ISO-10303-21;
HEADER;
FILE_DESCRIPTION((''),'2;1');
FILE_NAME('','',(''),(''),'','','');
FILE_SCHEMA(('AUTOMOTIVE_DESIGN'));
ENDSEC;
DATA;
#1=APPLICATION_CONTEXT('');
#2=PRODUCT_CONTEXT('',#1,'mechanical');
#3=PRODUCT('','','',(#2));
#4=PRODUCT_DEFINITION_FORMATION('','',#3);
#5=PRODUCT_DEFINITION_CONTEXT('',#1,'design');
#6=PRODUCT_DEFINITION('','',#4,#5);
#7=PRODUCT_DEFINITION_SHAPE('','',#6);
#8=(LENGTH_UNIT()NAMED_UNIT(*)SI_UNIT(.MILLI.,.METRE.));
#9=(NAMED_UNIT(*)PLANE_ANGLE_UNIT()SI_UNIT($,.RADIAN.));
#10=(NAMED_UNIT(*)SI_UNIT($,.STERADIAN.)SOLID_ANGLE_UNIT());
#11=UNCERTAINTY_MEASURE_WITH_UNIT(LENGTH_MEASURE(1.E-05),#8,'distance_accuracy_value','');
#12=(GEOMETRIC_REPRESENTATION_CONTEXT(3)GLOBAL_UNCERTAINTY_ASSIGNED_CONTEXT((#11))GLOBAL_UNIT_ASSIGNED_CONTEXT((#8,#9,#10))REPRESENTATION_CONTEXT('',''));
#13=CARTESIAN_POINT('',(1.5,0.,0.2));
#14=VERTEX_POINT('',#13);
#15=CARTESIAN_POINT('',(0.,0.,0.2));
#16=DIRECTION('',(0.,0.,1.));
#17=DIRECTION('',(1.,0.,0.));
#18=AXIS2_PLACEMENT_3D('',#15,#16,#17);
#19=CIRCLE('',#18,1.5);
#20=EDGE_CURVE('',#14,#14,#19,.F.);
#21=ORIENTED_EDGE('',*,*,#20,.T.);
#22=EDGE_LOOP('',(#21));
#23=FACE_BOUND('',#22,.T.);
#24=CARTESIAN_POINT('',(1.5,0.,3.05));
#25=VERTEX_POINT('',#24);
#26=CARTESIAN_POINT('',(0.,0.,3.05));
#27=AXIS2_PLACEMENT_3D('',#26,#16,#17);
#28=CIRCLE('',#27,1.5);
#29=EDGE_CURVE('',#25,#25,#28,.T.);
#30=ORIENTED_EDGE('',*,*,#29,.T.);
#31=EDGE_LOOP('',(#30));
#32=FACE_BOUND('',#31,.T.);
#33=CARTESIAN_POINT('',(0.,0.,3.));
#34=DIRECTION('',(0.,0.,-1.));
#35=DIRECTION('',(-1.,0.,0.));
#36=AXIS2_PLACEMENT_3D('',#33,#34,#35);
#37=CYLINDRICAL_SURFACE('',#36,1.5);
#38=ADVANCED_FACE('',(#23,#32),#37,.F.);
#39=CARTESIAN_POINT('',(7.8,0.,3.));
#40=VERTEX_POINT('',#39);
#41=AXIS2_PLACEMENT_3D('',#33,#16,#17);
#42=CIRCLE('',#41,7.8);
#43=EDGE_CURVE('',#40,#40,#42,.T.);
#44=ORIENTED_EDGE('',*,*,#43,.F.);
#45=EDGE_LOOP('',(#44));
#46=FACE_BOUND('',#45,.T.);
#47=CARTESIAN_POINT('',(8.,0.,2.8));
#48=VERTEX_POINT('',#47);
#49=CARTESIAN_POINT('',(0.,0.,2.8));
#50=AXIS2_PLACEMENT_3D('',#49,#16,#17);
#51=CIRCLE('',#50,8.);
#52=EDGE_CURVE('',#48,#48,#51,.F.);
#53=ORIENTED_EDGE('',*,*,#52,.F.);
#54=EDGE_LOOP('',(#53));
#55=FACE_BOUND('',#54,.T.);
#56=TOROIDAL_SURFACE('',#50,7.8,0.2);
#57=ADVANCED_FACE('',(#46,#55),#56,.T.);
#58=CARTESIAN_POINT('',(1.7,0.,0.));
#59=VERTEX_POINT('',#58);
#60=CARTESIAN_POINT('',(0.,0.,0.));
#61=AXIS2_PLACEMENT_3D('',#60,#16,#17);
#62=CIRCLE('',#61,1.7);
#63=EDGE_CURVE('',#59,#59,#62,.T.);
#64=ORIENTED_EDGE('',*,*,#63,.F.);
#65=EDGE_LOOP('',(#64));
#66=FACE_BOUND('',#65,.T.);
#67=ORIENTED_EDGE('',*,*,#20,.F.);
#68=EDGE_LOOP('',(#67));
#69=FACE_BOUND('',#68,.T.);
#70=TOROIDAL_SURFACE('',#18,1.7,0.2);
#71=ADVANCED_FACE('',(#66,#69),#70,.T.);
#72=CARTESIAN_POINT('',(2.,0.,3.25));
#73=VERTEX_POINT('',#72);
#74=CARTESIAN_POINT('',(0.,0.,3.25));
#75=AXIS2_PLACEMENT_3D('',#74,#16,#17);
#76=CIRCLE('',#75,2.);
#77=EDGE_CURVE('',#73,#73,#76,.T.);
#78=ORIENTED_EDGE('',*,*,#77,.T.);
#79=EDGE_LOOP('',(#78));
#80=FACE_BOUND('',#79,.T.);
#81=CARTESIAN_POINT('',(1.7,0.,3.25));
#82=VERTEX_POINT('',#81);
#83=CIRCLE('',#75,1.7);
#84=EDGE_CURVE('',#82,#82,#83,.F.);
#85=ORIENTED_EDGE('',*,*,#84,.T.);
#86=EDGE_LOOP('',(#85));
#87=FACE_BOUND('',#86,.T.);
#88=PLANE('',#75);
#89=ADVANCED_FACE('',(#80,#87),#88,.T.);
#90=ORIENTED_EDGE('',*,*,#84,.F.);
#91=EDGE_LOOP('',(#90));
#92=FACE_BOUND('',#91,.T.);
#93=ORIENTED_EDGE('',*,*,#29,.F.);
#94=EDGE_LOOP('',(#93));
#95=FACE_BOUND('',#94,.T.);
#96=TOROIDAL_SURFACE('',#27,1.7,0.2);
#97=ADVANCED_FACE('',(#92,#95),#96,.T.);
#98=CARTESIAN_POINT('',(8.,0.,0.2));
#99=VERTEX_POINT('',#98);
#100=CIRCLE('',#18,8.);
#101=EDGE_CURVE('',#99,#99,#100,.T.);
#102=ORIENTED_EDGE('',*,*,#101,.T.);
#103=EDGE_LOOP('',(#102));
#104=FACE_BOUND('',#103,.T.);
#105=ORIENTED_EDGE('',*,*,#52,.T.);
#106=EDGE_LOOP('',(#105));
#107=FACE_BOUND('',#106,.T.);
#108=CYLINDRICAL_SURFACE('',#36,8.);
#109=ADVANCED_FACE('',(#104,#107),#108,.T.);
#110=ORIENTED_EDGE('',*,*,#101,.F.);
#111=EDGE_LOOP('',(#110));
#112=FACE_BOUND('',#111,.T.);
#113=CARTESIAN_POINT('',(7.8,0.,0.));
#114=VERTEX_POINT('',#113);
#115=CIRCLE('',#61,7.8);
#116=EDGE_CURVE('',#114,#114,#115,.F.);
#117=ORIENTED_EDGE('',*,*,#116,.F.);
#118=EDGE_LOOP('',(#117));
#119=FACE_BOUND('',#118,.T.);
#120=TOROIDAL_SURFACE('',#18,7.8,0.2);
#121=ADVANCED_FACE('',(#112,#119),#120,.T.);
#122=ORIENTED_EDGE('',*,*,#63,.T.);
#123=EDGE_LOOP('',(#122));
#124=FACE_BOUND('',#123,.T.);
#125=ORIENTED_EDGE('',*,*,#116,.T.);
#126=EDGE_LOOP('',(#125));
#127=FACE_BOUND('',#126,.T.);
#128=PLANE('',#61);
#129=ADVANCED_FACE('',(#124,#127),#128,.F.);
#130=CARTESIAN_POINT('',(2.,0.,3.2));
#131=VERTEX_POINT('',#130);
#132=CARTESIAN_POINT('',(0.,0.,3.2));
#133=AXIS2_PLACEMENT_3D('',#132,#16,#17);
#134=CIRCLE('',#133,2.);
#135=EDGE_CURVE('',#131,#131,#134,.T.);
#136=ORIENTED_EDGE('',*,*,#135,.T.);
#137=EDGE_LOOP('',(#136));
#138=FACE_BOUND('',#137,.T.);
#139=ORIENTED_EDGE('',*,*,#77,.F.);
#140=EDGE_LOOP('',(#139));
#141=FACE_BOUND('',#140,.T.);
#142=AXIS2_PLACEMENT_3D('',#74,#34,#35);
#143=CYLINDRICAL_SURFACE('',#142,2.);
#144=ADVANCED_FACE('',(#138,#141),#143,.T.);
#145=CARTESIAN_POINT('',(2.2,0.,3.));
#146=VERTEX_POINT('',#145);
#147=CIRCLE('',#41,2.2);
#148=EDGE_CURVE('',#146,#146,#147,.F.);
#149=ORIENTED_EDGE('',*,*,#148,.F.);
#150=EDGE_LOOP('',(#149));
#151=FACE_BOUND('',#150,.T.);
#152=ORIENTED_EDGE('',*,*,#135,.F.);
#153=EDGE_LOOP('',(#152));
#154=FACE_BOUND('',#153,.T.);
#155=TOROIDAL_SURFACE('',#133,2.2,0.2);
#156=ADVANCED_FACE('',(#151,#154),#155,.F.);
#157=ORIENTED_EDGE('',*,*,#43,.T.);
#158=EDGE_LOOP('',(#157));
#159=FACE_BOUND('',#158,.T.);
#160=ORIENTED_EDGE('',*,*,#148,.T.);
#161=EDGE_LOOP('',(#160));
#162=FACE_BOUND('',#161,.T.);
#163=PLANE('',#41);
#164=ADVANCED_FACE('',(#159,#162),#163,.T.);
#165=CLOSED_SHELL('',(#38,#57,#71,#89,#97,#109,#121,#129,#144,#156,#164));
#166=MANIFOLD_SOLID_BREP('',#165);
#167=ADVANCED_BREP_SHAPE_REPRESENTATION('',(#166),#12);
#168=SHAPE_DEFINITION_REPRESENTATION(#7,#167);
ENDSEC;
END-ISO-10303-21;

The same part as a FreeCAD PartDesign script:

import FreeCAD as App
import Part
import Sketcher


def edges_at(feature, points):
    """Names of the edges that pass closest to the given points."""
    edges = feature.Shape.Edges
    near = lambda p: min(range(len(edges)), key=lambda i: edges[i].distToShape(Part.Vertex(*p))[0])
    return sorted({f"Edge{near(p) + 1}" for p in points})

doc = App.newDocument("Part")
body = doc.addObject("PartDesign::Body", "Body")

# Sketch on XY plane
sketch1 = body.newObject("Sketcher::SketchObject", "Sketch")
sketch1.AttachmentSupport = (doc.getObject("XY_Plane"), [""])
sketch1.MapMode = "FlatFace"
sketch1.addGeometry([
    Part.Circle(App.Vector(0, 0, 0), App.Vector(0, 0, 1), 8),
    Part.Circle(App.Vector(0, 0, 0), App.Vector(0, 0, 1), 1.5),
], False)
sketch1.addConstraint([
    Sketcher.Constraint("Coincident", 0, 3, -1, 1),
    Sketcher.Constraint("Coincident", 1, 3, -1, 1),
    Sketcher.Constraint("Diameter", 0, 16.0),
    Sketcher.Constraint("Diameter", 1, 3.0),
])
pad1 = body.newObject("PartDesign::Pad", "Pad")
pad1.Profile = sketch1
pad1.Length = 3

# Sketch on XY plane
sketch2 = body.newObject("Sketcher::SketchObject", "Sketch001")
sketch2.AttachmentSupport = (doc.getObject("XY_Plane"), [""])
sketch2.MapMode = "FlatFace"
sketch2.AttachmentOffset = App.Placement(App.Vector(0, 0, 3), App.Rotation())
sketch2.addGeometry([
    Part.Circle(App.Vector(0, 0, 0), App.Vector(0, 0, 1), 2),
    Part.Circle(App.Vector(0, 0, 0), App.Vector(0, 0, 1), 1.5),
], False)
sketch2.addConstraint([
    Sketcher.Constraint("Coincident", 0, 3, -1, 1),
    Sketcher.Constraint("Coincident", 1, 3, -1, 1),
    Sketcher.Constraint("Diameter", 0, 4.0),
    Sketcher.Constraint("Diameter", 1, 3.0),
])
pad2 = body.newObject("PartDesign::Pad", "Pad001")
pad2.Profile = sketch2
pad2.Length = 0.25
doc.recompute()

fillet = body.newObject("PartDesign::Fillet", "Fillet")
fillet.Base = (pad2, edges_at(pad2, [
    (-8, 0, 0),
    (-8, 0, 3),
    (-2, 0, 3),
    (-1.5, 0, 3.25),
    (-1.5, 0, 0),
]))
fillet.Radius = 0.2

doc.recompute()
